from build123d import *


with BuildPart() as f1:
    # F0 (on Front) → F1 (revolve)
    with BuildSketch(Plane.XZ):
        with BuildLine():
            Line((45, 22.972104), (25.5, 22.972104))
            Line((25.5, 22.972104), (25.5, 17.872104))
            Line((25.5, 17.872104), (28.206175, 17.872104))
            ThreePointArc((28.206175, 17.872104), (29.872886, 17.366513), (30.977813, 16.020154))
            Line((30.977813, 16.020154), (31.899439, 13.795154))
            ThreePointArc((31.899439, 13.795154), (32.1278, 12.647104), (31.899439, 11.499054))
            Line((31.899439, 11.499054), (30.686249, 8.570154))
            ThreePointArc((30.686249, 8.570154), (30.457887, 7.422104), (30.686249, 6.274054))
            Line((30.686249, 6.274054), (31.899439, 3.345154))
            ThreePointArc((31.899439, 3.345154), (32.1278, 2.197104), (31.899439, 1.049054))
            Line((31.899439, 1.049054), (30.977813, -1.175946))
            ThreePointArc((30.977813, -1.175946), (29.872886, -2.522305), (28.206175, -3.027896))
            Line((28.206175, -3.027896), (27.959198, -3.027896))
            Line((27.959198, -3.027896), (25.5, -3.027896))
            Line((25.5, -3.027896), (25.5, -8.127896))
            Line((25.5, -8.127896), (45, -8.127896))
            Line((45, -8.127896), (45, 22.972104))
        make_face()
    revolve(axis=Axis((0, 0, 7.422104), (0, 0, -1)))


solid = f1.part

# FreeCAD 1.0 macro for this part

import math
import FreeCAD as App
import Part
import Sketcher

V = App.Vector
Q = App.Units.Quantity

doc = App.newDocument("Part")
body = doc.addObject("PartDesign::Body", "Body")

sketch1 = body.newObject("Sketcher::SketchObject", "Sketch")
sketch1.AttachmentSupport = (doc.getObject("XZ_Plane"), [""])
sketch1.MapMode = "FlatFace"
sketch1.addGeometry([
    Part.LineSegment(V(45, 22.972104, 0), V(25.5, 22.972104, 0)),
    Part.LineSegment(V(25.5, 22.972104, 0), V(25.5, 17.872104, 0)),
    Part.LineSegment(V(25.5, 17.872104, 0), V(28.206175, 17.872104, 0)),
    Part.ArcOfCircle(Part.Circle(V(28.206177, 14.872107, 0), V(0, 0, 1), 2.999997), math.radians(22.49995), math.radians(90.000031)),
    Part.LineSegment(V(30.977813, 16.020154, 0), V(31.899439, 13.795154, 0)),
    Part.ArcOfCircle(Part.Circle(V(29.127797, 12.647104, 0), V(0, 0, 1), 3.000003), math.radians(-22.499967), math.radians(22.499967)),
    Part.LineSegment(V(31.899439, 11.499054, 0), V(30.686249, 8.570154, 0)),
    Part.ArcOfCircle(Part.Circle(V(33.457878, 7.422104, 0), V(0, 0, 1), 2.999991), math.radians(157.499937), math.radians(202.500063)),
    Part.LineSegment(V(30.686249, 6.274054, 0), V(31.899439, 3.345154, 0)),
    Part.ArcOfCircle(Part.Circle(V(29.127797, 2.197104, 0), V(0, 0, 1), 3.000003), math.radians(-22.499967), math.radians(22.499967)),
    Part.LineSegment(V(31.899439, 1.049054, 0), V(30.977813, -1.175946, 0)),
    Part.ArcOfCircle(Part.Circle(V(28.206177, -0.027899, 0), V(0, 0, 1), 2.999997), math.radians(-90.000031), math.radians(-22.49995)),
    Part.LineSegment(V(28.206175, -3.027896, 0), V(25.5, -3.027896, 0)),
    Part.LineSegment(V(25.5, -3.027896, 0), V(25.5, -8.127896, 0)),
    Part.LineSegment(V(25.5, -8.127896, 0), V(45, -8.127896, 0)),
    Part.LineSegment(V(45, -8.127896, 0), V(45, 22.972104, 0)),
], False)
sketch1.addConstraint([
    Sketcher.Constraint("Coincident", 0, 2, 1, 1),
    Sketcher.Constraint("Coincident", 1, 2, 2, 1),
    Sketcher.Constraint("Tangent", 2, 2, 3, 2),
    Sketcher.Constraint("Tangent", 3, 1, 4, 1),
    Sketcher.Constraint("Tangent", 4, 2, 5, 2),
    Sketcher.Constraint("Tangent", 5, 1, 6, 1),
    Sketcher.Constraint("Tangent", 6, 2, 7, 1),
    Sketcher.Constraint("Tangent", 7, 2, 8, 1),
    Sketcher.Constraint("Tangent", 8, 2, 9, 2),
    Sketcher.Constraint("Tangent", 9, 1, 10, 1),
    Sketcher.Constraint("Tangent", 10, 2, 11, 2),
    Sketcher.Constraint("Tangent", 11, 1, 12, 1),
    Sketcher.Constraint("Coincident", 12, 2, 13, 1),
    Sketcher.Constraint("Coincident", 13, 2, 14, 1),
    Sketcher.Constraint("Coincident", 14, 2, 15, 1),
    Sketcher.Constraint("Coincident", 15, 2, 0, 1),
    Sketcher.Constraint("Horizontal", 0),
    Sketcher.Constraint("Vertical", 1),
    Sketcher.Constraint("Horizontal", 2),
    Sketcher.Constraint("Horizontal", 12),
    Sketcher.Constraint("Vertical", 13),
    Sketcher.Constraint("Horizontal", 14),
    Sketcher.Constraint("Vertical", 15),
    Sketcher.Constraint("Equal", 5, 9),
    Sketcher.Constraint("Equal", 3, 11),
    Sketcher.Constraint("Parallel", 4, 8),
    Sketcher.Constraint("Parallel", 6, 10),
    Sketcher.Constraint("Vertical", 5, 3, 9, 3),
    Sketcher.Constraint("Vertical", 3, 3, 11, 3),
    Sketcher.Constraint("Vertical", 4, 2, 5, 1),
    Sketcher.Constraint("Vertical", 1, 2, 12, 2),
    Sketcher.Constraint("Equal", 1, 13),
    Sketcher.Constraint("DistanceX", 0, 2, 0, 1, 19.5),
    Sketcher.Constraint("DistanceY", 1, 2, 1, 1, 5.1),
    Sketcher.Constraint("DistanceY", 15, 1, 15, 2, 31.1),
    Sketcher.Constraint("DistanceX", -1, 1, 14, 2, 45.0),
    Sketcher.Constraint("Angle", 4, Q("-67.499982 deg")),
    Sketcher.Constraint("Radius", 7, 2.999991),
    Sketcher.Constraint("DistanceY", 9, 3, 5, 3, 10.45),
    Sketcher.Constraint("DistanceY", 10, 2, 7, 2, 7.45),
    Sketcher.Constraint("Radius", 5, 3.000003),
    Sketcher.Constraint("DistanceY", 11, 3, -1, 1, 0.027899),
    Sketcher.Constraint("DistanceX", 2, 1, 2, 2, 2.706175),
])
revolution = body.newObject("PartDesign::Revolution", "Revolution")
revolution.Profile = sketch1
revolution.ReferenceAxis = (sketch1, ["V_Axis"])
revolution.Angle = 360

doc.recompute()
